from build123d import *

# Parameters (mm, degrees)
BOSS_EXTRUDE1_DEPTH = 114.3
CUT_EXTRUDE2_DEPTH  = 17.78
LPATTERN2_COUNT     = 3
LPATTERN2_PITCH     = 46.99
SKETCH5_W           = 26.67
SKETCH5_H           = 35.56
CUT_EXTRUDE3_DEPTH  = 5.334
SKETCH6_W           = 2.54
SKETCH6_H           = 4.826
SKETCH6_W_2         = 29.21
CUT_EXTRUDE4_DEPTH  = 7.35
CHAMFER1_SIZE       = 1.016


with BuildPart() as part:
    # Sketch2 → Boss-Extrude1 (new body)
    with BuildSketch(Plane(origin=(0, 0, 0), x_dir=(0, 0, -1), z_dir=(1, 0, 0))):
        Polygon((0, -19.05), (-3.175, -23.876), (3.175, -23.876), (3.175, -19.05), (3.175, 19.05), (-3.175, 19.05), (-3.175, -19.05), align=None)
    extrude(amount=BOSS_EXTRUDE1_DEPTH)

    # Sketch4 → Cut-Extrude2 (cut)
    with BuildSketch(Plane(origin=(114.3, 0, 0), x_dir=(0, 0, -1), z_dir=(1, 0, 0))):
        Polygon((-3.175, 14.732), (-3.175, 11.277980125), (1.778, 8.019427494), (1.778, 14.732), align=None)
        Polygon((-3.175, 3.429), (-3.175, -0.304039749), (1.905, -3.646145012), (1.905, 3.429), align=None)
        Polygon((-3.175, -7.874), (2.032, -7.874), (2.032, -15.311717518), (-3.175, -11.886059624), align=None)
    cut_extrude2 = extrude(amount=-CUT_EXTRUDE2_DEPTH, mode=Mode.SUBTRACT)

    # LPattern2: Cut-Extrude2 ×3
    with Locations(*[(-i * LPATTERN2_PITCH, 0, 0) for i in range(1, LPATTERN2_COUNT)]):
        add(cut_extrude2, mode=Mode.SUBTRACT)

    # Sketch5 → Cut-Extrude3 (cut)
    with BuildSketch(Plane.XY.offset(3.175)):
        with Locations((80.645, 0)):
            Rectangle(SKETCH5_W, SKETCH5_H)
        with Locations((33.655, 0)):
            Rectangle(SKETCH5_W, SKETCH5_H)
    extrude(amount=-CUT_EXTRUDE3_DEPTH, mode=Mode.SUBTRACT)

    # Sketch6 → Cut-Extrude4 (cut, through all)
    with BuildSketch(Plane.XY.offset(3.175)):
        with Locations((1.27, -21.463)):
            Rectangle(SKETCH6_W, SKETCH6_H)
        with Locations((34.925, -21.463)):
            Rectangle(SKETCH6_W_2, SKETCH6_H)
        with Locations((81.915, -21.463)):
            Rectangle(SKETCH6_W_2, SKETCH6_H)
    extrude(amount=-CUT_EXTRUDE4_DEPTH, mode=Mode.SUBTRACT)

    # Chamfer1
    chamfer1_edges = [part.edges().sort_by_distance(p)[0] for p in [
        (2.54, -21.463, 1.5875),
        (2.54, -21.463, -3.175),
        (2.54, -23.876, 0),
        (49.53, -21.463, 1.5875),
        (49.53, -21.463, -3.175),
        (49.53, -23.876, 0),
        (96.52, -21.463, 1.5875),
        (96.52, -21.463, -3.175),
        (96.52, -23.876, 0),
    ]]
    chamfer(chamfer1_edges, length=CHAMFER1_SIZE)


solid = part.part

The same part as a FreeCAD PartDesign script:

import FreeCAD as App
import Part
import Sketcher
from FreeCAD import Vector
Q = App.Units.Quantity


def edges_at(feature, points):
    """Names of the edges that pass closest to the given points."""
    edges = feature.Shape.Edges
    near = lambda p: min(range(len(edges)), key=lambda i: edges[i].distToShape(Part.Vertex(*p))[0])
    return sorted({f"Edge{near(p) + 1}" for p in points})

doc = App.newDocument("Part")
body = doc.addObject("PartDesign::Body", "Body")

# Sketch on YZ plane
sketch1 = doc.addObject("Sketcher::SketchObject", "Sketch")
body.addObject(sketch1)
sketch1.AttachmentSupport = (doc.YZ_Plane, [""])
sketch1.MapMode = "FlatFace"
sketch1.addGeometry([
    Part.LineSegment(Vector(-19.1, 0, 0), Vector(-23.9, 3.2, 0)),  # 0
    Part.LineSegment(Vector(-23.9, 3.2, 0), Vector(-23.9, -3.2, 0)),  # 1
    Part.LineSegment(Vector(-23.9, -3.2, 0), Vector(19.1, -3.2, 0)),  # 2
    Part.LineSegment(Vector(19.1, -3.2, 0), Vector(19.1, 3.2, 0)),  # 3
    Part.LineSegment(Vector(19.1, 3.2, 0), Vector(-19.1, 3.2, 0)),  # 4
    Part.LineSegment(Vector(-19.1, 3.2, 0), Vector(-19.1, 0, 0)),  # 5
], False)
sketch1.addConstraint([
    Sketcher.Constraint("Coincident", 0, 2, 1, 1),
    Sketcher.Constraint("Coincident", 1, 2, 2, 1),
    Sketcher.Constraint("Coincident", 2, 2, 3, 1),
    Sketcher.Constraint("Coincident", 3, 2, 4, 1),
    Sketcher.Constraint("Coincident", 4, 2, 5, 1),
    Sketcher.Constraint("Coincident", 5, 2, 0, 1),
    Sketcher.Constraint("Vertical", 1),
    Sketcher.Constraint("Horizontal", 2),
    Sketcher.Constraint("Vertical", 3),
    Sketcher.Constraint("Horizontal", 4),
    Sketcher.Constraint("Vertical", 5),
    Sketcher.Constraint("Symmetric", 2, 2, 4, 2, -1, 1),
    Sketcher.Constraint("PointOnObject", 5, 2, -1),
    Sketcher.Constraint("Horizontal", 0, 2, 3, 2),
    Sketcher.Constraint("DistanceX", 4, 2, 4, 1, Q("1.5 in")),
    Sketcher.Constraint("DistanceX", 2, 1, 2, 2, Q("1.69 in")),
    Sketcher.Constraint("DistanceY", 1, 2, 1, 1, Q("0.25 in")),
])
pad1 = doc.addObject("PartDesign::Pad", "Pad")
body.addObject(pad1)
pad1.Profile = sketch1
pad1.Length = Q("4.5 in")

# Sketch on YZ plane
sketch2 = doc.addObject("Sketcher::SketchObject", "Sketch001")
body.addObject(sketch2)
sketch2.AttachmentSupport = (doc.YZ_Plane, [""])
sketch2.MapMode = "FlatFace"
sketch2.AttachmentOffset = App.Placement(Vector(0, 0, 4.5 * 25.4), App.Rotation())
sketch2.addGeometry([
    Part.LineSegment(Vector(14.7, 3.2, 0), Vector(11.3, 3.2, 0)),  # 0
    Part.LineSegment(Vector(11.3, 3.2, 0), Vector(8, -1.8, 0)),  # 1
    Part.LineSegment(Vector(8, -1.8, 0), Vector(14.7, -1.8, 0)),  # 2
    Part.LineSegment(Vector(14.7, -1.8, 0), Vector(14.7, 3.2, 0)),  # 3
    Part.LineSegment(Vector(3.4, 3.2, 0), Vector(-0.3, 3.2, 0)),  # 4
    Part.LineSegment(Vector(-0.3, 3.2, 0), Vector(-3.6, -1.9, 0)),  # 5
    Part.LineSegment(Vector(-3.6, -1.9, 0), Vector(3.4, -1.9, 0)),  # 6
    Part.LineSegment(Vector(3.4, -1.9, 0), Vector(3.4, 3.2, 0)),  # 7
    Part.LineSegment(Vector(-7.9, -2, 0), Vector(-7.9, 3.2, 0)),  # 8
    Part.LineSegment(Vector(-7.9, 3.2, 0), Vector(-11.9, 3.2, 0)),  # 9
    Part.LineSegment(Vector(-11.9, 3.2, 0), Vector(-15.3, -2, 0)),  # 10
    Part.LineSegment(Vector(-15.3, -2, 0), Vector(-7.9, -2, 0)),  # 11
], False)
sketch2.addConstraint([
    Sketcher.Constraint("Coincident", 0, 2, 1, 1),
    Sketcher.Constraint("Coincident", 1, 2, 2, 1),
    Sketcher.Constraint("Coincident", 2, 2, 3, 1),
    Sketcher.Constraint("Coincident", 3, 2, 0, 1),
    Sketcher.Constraint("Coincident", 4, 2, 5, 1),
    Sketcher.Constraint("Coincident", 5, 2, 6, 1),
    Sketcher.Constraint("Coincident", 6, 2, 7, 1),
    Sketcher.Constraint("Coincident", 7, 2, 4, 1),
    Sketcher.Constraint("Coincident", 8, 2, 9, 1),
    Sketcher.Constraint("Coincident", 9, 2, 10, 1),
    Sketcher.Constraint("Coincident", 10, 2, 11, 1),
    Sketcher.Constraint("Coincident", 11, 2, 8, 1),
    Sketcher.Constraint("Horizontal", 0),
    Sketcher.Constraint("Horizontal", 2),
    Sketcher.Constraint("Vertical", 3),
    Sketcher.Constraint("Horizontal", 4),
    Sketcher.Constraint("Horizontal", 6),
    Sketcher.Constraint("Vertical", 7),
    Sketcher.Constraint("Vertical", 8),
    Sketcher.Constraint("Horizontal", 9),
    Sketcher.Constraint("Horizontal", 11),
    Sketcher.Constraint("Parallel", 1, 5),
    Sketcher.Constraint("Parallel", 5, 10),
    Sketcher.Constraint("Horizontal", 3, 2, 4, 2),
    Sketcher.Constraint("Horizontal", 7, 2, 8, 2),
    Sketcher.Constraint("DistanceY", 7, 1, 7, 2, Q("0.2 in")),
    Sketcher.Constraint("DistanceY", 3, 1, 3, 2, Q("0.195 in")),
    Sketcher.Constraint("DistanceY", 8, 1, 8, 2, Q("0.205 in")),
    Sketcher.Constraint("DistanceY", 1, 2, -1, 1, Q("0.07 in")),
    Sketcher.Constraint("DistanceX", -1, 1, 2, 2, Q("0.58 in")),
    Sketcher.Constraint("DistanceX", 8, 2, -1, 1, Q("0.31 in")),
    Sketcher.Constraint("DistanceX", -1, 1, 6, 2, Q("0.135 in")),
    Sketcher.Constraint("DistanceX", 0, 2, 0, 1, 3.45402),
    Sketcher.Constraint("DistanceX", 4, 2, 4, 1, 3.73304),
    Sketcher.Constraint("DistanceX", 9, 2, 9, 1, 4.01206),
    Sketcher.Constraint("DistanceX", 2, 1, 2, 2, 6.712573),
])
pocket1 = doc.addObject("PartDesign::Pocket", "Pocket")
body.addObject(pocket1)
pocket1.Profile = sketch2
pocket1.Length = Q("0.7 in")
doc.recompute()

linearpattern = doc.addObject("PartDesign::LinearPattern", "LinearPattern")
body.addObject(linearpattern)
linearpattern.Originals = [pocket1]
linearpattern.Direction = (doc.X_Axis, [""])
linearpattern.Mode = "offset"
linearpattern.Offset = Q("1.85 in")
linearpattern.Occurrences = 3
linearpattern.Reversed = True
body.Tip = linearpattern

# Sketch on XY plane
sketch3 = doc.addObject("Sketcher::SketchObject", "Sketch002")
body.addObject(sketch3)
sketch3.AttachmentSupport = (doc.XY_Plane, [""])
sketch3.MapMode = "FlatFace"
sketch3.AttachmentOffset = App.Placement(Vector(0, 0, 0.125 * 25.4), App.Rotation())
sketch3.addGeometry([
    Part.LineSegment(Vector(67, 18, 0), Vector(67, -18, 0)),  # 0
    Part.LineSegment(Vector(67, -18, 0), Vector(94, -18, 0)),  # 1
    Part.LineSegment(Vector(94, -18, 0), Vector(94, 18, 0)),  # 2
    Part.LineSegment(Vector(94, 18, 0), Vector(67, 18, 0)),  # 3
    Part.LineSegment(Vector(20, 18, 0), Vector(20, -18, 0)),  # 4
    Part.LineSegment(Vector(20, -18, 0), Vector(47, -18, 0)),  # 5
    Part.LineSegment(Vector(47, -18, 0), Vector(47, 18, 0)),  # 6
    Part.LineSegment(Vector(47, 18, 0), Vector(20, 18, 0)),  # 7
], False)
sketch3.addConstraint([
    Sketcher.Constraint("Coincident", 0, 2, 1, 1),
    Sketcher.Constraint("Coincident", 1, 2, 2, 1),
    Sketcher.Constraint("Coincident", 2, 2, 3, 1),
    Sketcher.Constraint("Coincident", 3, 2, 0, 1),
    Sketcher.Constraint("Coincident", 4, 2, 5, 1),
    Sketcher.Constraint("Coincident", 5, 2, 6, 1),
    Sketcher.Constraint("Coincident", 6, 2, 7, 1),
    Sketcher.Constraint("Coincident", 7, 2, 4, 1),
    Sketcher.Constraint("Vertical", 0),
    Sketcher.Constraint("Horizontal", 1),
    Sketcher.Constraint("Vertical", 2),
    Sketcher.Constraint("Horizontal", 3),
    Sketcher.Constraint("Vertical", 4),
    Sketcher.Constraint("Horizontal", 5),
    Sketcher.Constraint("Vertical", 6),
    Sketcher.Constraint("Horizontal", 7),
    Sketcher.Constraint("Horizontal", 1, 2, 4, 2),
    Sketcher.Constraint("Horizontal", 3, 2, 6, 2),
    Sketcher.Constraint("Equal", 3, 5),
    Sketcher.Constraint("DistanceY", 0, 2, 0, 1, Q("1.4 in")),
    Sketcher.Constraint("DistanceX", 1, 1, 1, 2, Q("1.05 in")),
    Sketcher.Constraint("DistanceY", 0, 2, -1, 1, Q("0.7 in")),
    Sketcher.Constraint("DistanceX", -1, 1, 1, 2, Q("3.7 in")),
    Sketcher.Constraint("DistanceX", -1, 1, 4, 2, Q("0.8 in")),
])
pocket2 = doc.addObject("PartDesign::Pocket", "Pocket001")
body.addObject(pocket2)
pocket2.Profile = sketch3
pocket2.Length = Q("0.21 in")

# Sketch on XY plane
sketch4 = doc.addObject("Sketcher::SketchObject", "Sketch003")
body.addObject(sketch4)
sketch4.AttachmentSupport = (doc.XY_Plane, [""])
sketch4.MapMode = "FlatFace"
sketch4.AttachmentOffset = App.Placement(Vector(0, 0, 0.125 * 25.4), App.Rotation())
sketch4.addGeometry([
    Part.LineSegment(Vector(0, -19.1, 0), Vector(0, -23.9, 0)),  # 0
    Part.LineSegment(Vector(0, -23.9, 0), Vector(2.5, -23.9, 0)),  # 1
    Part.LineSegment(Vector(2.5, -23.9, 0), Vector(2.5, -19.1, 0)),  # 2
    Part.LineSegment(Vector(2.5, -19.1, 0), Vector(0, -19.1, 0)),  # 3
    Part.LineSegment(Vector(20.3, -19.1, 0), Vector(20.3, -23.9, 0)),  # 4
    Part.LineSegment(Vector(20.3, -23.9, 0), Vector(49.5, -23.9, 0)),  # 5
    Part.LineSegment(Vector(49.5, -23.9, 0), Vector(49.5, -19.1, 0)),  # 6
    Part.LineSegment(Vector(49.5, -19.1, 0), Vector(20.3, -19.1, 0)),  # 7
    Part.LineSegment(Vector(67.3, -19.1, 0), Vector(67.3, -23.9, 0)),  # 8
    Part.LineSegment(Vector(67.3, -23.9, 0), Vector(96.5, -23.9, 0)),  # 9
    Part.LineSegment(Vector(96.5, -23.9, 0), Vector(96.5, -19.1, 0)),  # 10
    Part.LineSegment(Vector(96.5, -19.1, 0), Vector(67.3, -19.1, 0)),  # 11
], False)
sketch4.addConstraint([
    Sketcher.Constraint("Coincident", 0, 2, 1, 1),
    Sketcher.Constraint("Coincident", 1, 2, 2, 1),
    Sketcher.Constraint("Coincident", 2, 2, 3, 1),
    Sketcher.Constraint("Coincident", 3, 2, 0, 1),
    Sketcher.Constraint("Coincident", 4, 2, 5, 1),
    Sketcher.Constraint("Coincident", 5, 2, 6, 1),
    Sketcher.Constraint("Coincident", 6, 2, 7, 1),
    Sketcher.Constraint("Coincident", 7, 2, 4, 1),
    Sketcher.Constraint("Coincident", 8, 2, 9, 1),
    Sketcher.Constraint("Coincident", 9, 2, 10, 1),
    Sketcher.Constraint("Coincident", 10, 2, 11, 1),
    Sketcher.Constraint("Coincident", 11, 2, 8, 1),
    Sketcher.Constraint("Vertical", 0),
    Sketcher.Constraint("Horizontal", 1),
    Sketcher.Constraint("Vertical", 2),
    Sketcher.Constraint("Horizontal", 3),
    Sketcher.Constraint("Vertical", 4),
    Sketcher.Constraint("Horizontal", 5),
    Sketcher.Constraint("Vertical", 6),
    Sketcher.Constraint("Horizontal", 7),
    Sketcher.Constraint("Vertical", 8),
    Sketcher.Constraint("Horizontal", 9),
    Sketcher.Constraint("Vertical", 10),
    Sketcher.Constraint("Horizontal", 11),
    Sketcher.Constraint("PointOnObject", 0, 2, -2),
    Sketcher.Constraint("Horizontal", 1, 2, 4, 2),
    Sketcher.Constraint("Horizontal", 3, 2, 6, 2),
    Sketcher.Constraint("Horizontal", 5, 2, 8, 2),
    Sketcher.Constraint("Horizontal", 7, 2, 10, 2),
    Sketcher.Constraint("Equal", 7, 9),
    Sketcher.Constraint("DistanceX", 1, 1, 1, 2, Q("0.1 in")),
    Sketcher.Constraint("DistanceX", 4, 2, 9, 2, Q("3 in")),
    Sketcher.Constraint("DistanceX", 5, 1, 5, 2, Q("1.15 in")),
    Sketcher.Constraint("DistanceY", 0, 2, 0, 1, Q("0.19 in")),
    Sketcher.Constraint("DistanceX", -1, 1, 4, 2, Q("0.8 in")),
    Sketcher.Constraint("DistanceY", 0, 2, -1, 1, Q("0.94 in")),
])
pocket3 = doc.addObject("PartDesign::Pocket", "Pocket002")
body.addObject(pocket3)
pocket3.Profile = sketch4
pocket3.Type = "ThroughAll"
doc.recompute()

chamfer = doc.addObject("PartDesign::Chamfer", "Chamfer")
body.addObject(chamfer)
chamfer.Base = (pocket3, edges_at(pocket3, [
    (2.54, -21.463, 1.587),
    (2.54, -21.463, -3.175),
    (2.54, -23.876, 0),
    (49.53, -21.463, 1.587),
    (49.53, -21.463, -3.175),
    (49.53, -23.876, 0),
    (96.52, -21.463, 1.587),
    (96.52, -21.463, -3.175),
    (96.52, -23.876, 0),
]))
chamfer.Size = Q("0.04 in")

doc.recompute()
